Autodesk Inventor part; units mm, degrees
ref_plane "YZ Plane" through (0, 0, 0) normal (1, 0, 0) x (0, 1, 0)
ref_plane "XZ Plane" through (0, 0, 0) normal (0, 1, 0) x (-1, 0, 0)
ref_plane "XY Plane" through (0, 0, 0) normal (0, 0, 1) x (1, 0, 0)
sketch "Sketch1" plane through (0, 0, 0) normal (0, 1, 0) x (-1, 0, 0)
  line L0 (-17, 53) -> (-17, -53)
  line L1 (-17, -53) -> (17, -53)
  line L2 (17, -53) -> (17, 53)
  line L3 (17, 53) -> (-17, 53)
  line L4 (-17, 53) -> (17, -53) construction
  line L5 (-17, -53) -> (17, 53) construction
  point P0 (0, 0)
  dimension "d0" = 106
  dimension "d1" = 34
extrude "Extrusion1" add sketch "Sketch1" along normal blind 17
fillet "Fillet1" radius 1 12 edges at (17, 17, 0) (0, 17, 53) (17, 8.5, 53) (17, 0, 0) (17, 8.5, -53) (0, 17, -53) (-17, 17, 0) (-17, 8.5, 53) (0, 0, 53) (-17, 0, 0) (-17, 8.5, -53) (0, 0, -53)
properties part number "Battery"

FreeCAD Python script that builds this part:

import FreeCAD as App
import Part
import Sketcher
from FreeCAD import Vector


def add_polygon(sketch, points):
    """Adds a closed chain of lines whose ends are joined by coincident constraints."""
    first, n = sketch.GeometryCount, len(points)
    for a, b in zip(points, points[1:] + points[:1]):
        sketch.addGeometry(Part.LineSegment(App.Vector(*a, 0), App.Vector(*b, 0)), False)
    for i in range(n):
        sketch.addConstraint(Sketcher.Constraint("Coincident", first + i, 2, first + (i + 1) % n, 1))

doc = App.newDocument("Part")
body = doc.addObject("PartDesign::Body", "Body")

# Sketch on XZ plane
sketch1 = body.newObject("Sketcher::SketchObject", "Sketch")
sketch1.AttachmentSupport = (doc.getObject("XZ_Plane"), [""])
sketch1.MapMode = "FlatFace"
add_polygon(sketch1, [(-17, 53), (17, 53), (17, -53), (-17, -53)])  # lines 0-3
sketch1.addConstraint([
    Sketcher.Constraint("Horizontal", 0),
    Sketcher.Constraint("Vertical", 1),
    Sketcher.Constraint("Horizontal", 2),
    Sketcher.Constraint("Vertical", 3),
    Sketcher.Constraint("Symmetric", 0, 2, 2, 2, -1, 1),
    Sketcher.Constraint("DistanceX", 0, 1, 0, 2, 34.0),
    Sketcher.Constraint("DistanceY", 1, 2, 1, 1, 106.0),
])
pad1 = body.newObject("PartDesign::Pad", "Pad")
pad1.Profile = sketch1
pad1.Length = 17
pad1.Reversed = True
doc.recompute()

fillet = body.newObject("PartDesign::Fillet", "Fillet")
fillet.Base = (pad1, ["Edge1"])
fillet.UseAllEdges = True
fillet.Radius = 1

doc.recompute()
